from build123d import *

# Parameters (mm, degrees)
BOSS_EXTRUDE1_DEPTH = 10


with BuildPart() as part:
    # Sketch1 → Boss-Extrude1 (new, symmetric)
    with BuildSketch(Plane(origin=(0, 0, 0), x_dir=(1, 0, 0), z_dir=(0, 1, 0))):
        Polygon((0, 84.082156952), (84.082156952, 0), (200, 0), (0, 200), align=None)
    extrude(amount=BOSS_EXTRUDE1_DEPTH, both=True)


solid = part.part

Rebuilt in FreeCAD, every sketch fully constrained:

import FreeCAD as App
import Part
import Sketcher

doc = App.newDocument("Part")
body = doc.addObject("PartDesign::Body", "Body")

sketch1 = body.newObject("Sketcher::SketchObject", "Sketch")
sketch1.AttachmentSupport = (doc.getObject("XZ_Plane"), [""])
sketch1.MapMode = "FlatFace"
sketch1.addGeometry([
    Part.LineSegment(App.Vector(0, -84, 0), App.Vector(84, 0, 0)),
    Part.LineSegment(App.Vector(84, 0, 0), App.Vector(200, 0, 0)),
    Part.LineSegment(App.Vector(200, 0, 0), App.Vector(0, -200, 0)),
    Part.LineSegment(App.Vector(0, -200, 0), App.Vector(0, -84, 0)),
], False)
sketch1.addConstraint([
    Sketcher.Constraint("Coincident", 0, 2, 1, 1),
    Sketcher.Constraint("Coincident", 1, 2, 2, 1),
    Sketcher.Constraint("Coincident", 2, 2, 3, 1),
    Sketcher.Constraint("Coincident", 3, 2, 0, 1),
    Sketcher.Constraint("Horizontal", 1),
    Sketcher.Constraint("Vertical", 3),
    Sketcher.Constraint("PointOnObject", 0, 2, -1),
    Sketcher.Constraint("PointOnObject", 2, 2, -2),
    Sketcher.Constraint("Parallel", 0, 2),
    Sketcher.Constraint("Equal", 1, 3),
    Sketcher.Constraint("DistanceX", -1, 1, 1, 2, 200.0),
    Sketcher.Constraint("DistanceX", 1, 1, 1, 2, 115.917843),
])
pad1 = body.newObject("PartDesign::Pad", "Pad")
pad1.Profile = sketch1
pad1.Length = 20
pad1.Midplane = True

doc.recompute()
